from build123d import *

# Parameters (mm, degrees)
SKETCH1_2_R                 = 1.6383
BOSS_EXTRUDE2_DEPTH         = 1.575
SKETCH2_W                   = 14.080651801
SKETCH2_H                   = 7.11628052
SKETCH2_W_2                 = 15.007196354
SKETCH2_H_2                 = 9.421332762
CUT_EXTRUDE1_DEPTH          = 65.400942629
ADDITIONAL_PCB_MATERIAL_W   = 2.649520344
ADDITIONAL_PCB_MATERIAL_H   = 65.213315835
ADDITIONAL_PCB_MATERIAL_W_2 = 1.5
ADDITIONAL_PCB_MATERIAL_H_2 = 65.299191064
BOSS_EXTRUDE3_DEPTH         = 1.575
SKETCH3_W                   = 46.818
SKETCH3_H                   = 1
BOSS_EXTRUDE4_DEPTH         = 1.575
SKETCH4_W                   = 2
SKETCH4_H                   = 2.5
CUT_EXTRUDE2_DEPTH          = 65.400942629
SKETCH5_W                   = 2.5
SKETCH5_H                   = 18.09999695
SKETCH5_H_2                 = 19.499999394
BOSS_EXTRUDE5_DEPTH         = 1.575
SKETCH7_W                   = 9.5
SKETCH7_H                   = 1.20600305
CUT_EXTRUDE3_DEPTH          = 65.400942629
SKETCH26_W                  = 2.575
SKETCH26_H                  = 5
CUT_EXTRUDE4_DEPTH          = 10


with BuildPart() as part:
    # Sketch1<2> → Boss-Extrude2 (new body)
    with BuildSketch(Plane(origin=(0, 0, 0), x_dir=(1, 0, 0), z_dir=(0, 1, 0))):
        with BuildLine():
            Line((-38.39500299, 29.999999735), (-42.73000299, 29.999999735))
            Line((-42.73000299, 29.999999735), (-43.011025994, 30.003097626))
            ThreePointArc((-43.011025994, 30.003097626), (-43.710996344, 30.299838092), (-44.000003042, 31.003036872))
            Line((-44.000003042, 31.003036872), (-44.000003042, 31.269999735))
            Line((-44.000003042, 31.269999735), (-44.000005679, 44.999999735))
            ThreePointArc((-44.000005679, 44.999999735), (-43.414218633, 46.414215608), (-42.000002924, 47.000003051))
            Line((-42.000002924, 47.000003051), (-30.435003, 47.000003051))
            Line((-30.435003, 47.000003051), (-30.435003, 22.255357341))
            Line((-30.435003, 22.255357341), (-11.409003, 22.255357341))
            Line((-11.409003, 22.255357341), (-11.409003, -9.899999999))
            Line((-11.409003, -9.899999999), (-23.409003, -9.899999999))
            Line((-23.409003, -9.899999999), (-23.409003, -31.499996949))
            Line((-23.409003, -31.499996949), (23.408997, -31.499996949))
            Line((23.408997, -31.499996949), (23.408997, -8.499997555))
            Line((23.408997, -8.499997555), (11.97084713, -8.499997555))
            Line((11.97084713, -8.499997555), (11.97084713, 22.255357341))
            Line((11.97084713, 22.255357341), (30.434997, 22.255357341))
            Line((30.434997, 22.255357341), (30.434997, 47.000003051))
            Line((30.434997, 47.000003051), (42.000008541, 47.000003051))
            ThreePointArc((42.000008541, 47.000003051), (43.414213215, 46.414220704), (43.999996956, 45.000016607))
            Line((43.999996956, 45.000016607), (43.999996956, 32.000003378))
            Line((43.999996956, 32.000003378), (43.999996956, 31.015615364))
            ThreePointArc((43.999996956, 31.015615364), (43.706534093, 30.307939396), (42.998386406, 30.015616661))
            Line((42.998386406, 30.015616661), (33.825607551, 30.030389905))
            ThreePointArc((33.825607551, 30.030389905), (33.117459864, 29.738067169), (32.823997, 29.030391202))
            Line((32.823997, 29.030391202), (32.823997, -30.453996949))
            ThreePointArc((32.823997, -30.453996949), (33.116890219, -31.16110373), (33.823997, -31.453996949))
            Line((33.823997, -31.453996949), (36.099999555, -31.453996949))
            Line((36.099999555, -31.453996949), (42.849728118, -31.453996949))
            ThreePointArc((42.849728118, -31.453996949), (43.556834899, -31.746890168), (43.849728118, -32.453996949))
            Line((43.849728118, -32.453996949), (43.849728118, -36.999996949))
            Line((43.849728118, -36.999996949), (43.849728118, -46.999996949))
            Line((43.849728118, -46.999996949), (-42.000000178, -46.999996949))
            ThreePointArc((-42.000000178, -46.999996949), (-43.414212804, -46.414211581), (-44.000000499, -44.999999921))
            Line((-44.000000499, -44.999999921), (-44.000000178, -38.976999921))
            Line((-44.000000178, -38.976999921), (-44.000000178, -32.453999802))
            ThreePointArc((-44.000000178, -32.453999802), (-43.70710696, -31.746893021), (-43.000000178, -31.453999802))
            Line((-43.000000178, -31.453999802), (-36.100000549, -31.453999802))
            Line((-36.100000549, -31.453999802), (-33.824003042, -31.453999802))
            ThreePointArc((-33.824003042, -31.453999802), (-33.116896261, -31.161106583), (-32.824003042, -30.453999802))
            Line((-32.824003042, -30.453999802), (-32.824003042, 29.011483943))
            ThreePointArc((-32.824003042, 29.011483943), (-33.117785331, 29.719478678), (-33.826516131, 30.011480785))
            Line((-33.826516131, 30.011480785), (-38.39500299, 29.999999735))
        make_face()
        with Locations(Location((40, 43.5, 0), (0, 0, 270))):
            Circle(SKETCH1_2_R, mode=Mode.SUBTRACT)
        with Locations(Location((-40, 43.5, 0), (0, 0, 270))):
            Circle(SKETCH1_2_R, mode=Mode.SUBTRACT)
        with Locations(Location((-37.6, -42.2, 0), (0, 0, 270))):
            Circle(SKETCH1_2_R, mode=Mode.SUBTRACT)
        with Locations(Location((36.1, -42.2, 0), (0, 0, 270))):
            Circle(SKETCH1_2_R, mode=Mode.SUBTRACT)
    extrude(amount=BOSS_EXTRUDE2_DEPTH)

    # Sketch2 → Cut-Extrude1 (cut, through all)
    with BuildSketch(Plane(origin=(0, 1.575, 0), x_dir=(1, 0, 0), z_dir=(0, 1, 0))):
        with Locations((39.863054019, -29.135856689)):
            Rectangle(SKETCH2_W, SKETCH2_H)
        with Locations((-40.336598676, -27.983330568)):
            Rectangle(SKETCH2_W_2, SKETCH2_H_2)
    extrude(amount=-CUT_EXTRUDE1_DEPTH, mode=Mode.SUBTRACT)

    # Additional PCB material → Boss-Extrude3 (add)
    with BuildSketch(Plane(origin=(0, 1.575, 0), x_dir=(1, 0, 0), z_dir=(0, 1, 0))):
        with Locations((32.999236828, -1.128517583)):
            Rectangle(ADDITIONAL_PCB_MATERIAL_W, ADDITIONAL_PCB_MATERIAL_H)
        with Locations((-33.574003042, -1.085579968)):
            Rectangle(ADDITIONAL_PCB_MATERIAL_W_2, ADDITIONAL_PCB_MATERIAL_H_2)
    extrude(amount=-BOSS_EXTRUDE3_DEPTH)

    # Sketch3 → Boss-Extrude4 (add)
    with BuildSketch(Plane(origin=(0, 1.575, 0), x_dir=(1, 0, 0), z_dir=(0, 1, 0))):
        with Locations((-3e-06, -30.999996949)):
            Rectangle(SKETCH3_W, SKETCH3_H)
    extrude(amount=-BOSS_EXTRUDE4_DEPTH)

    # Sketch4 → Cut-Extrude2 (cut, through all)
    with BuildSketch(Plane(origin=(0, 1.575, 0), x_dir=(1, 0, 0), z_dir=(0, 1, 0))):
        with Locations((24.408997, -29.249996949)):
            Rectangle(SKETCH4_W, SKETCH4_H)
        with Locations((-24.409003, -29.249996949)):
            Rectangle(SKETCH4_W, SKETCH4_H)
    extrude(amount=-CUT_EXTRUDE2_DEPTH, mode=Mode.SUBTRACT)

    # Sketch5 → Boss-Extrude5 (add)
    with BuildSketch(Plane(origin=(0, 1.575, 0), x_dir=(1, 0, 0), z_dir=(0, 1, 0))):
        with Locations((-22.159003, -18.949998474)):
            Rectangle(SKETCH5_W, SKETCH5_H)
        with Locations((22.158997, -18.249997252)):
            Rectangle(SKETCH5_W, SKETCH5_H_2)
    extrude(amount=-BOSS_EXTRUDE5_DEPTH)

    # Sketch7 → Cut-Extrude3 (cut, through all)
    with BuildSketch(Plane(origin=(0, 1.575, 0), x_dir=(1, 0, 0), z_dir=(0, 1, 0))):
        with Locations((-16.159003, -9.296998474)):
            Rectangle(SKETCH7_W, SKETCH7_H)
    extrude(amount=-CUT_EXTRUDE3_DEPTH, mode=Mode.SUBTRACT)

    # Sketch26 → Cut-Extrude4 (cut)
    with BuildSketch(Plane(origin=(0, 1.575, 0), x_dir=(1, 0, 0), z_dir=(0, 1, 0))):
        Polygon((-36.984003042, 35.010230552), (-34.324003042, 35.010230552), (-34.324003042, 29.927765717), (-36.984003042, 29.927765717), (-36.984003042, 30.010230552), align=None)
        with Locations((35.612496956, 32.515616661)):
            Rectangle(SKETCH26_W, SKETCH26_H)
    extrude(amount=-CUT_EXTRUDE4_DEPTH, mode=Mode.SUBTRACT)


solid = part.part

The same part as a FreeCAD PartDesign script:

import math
import FreeCAD as App
import Part
import Sketcher


def add_polygon(sketch, points):
    """Adds a closed chain of lines whose ends are joined by coincident constraints."""
    first, n = sketch.GeometryCount, len(points)
    for a, b in zip(points, points[1:] + points[:1]):
        sketch.addGeometry(Part.LineSegment(App.Vector(*a, 0), App.Vector(*b, 0)), False)
    for i in range(n):
        sketch.addConstraint(Sketcher.Constraint("Coincident", first + i, 2, first + (i + 1) % n, 1))

doc = App.newDocument("Part")
params = doc.addObject("Spreadsheet::Sheet", "Params")
for row, (alias, value) in enumerate([
    ("sketch1_radius", "1 mm"),
    ("sketch1_radius2", "2 mm"),
    ("sketch1_width", "12 mm"),
    ("sketch1_height", "22.999999 mm"),
    ("sketch1_length", "13.73 mm"),
    ("pad1_length", "1.575 mm"),
    ("sketch3_width", "1.5 mm"),
    ("pad2_length", "1.575 mm"),
    ("sketch4_height", "1 mm"),
    ("pad3_length", "1.575 mm"),
    ("sketch5_width", "2 mm"),
    ("sketch5_height", "2.5 mm"),
    ("sketch6_width", "2.5 mm"),
    ("sketch6_height", "19.499999 mm"),
    ("pad4_length", "1.575 mm"),
    ("sketch7_width", "9.5 mm"),
    ("sketch8_height", "5 mm"),
    ("sketch8_width", "2.66 mm"),
    ("pocket4_length", "10 mm"),
], start=1):
    params.set(f"A{row}", alias)
    params.set(f"B{row}", "=" + value)
    params.setAlias(f"B{row}", alias)

body = doc.addObject("PartDesign::Body", "Body")

# Sketch on XZ plane
sketch1 = doc.addObject("Sketcher::SketchObject", "Sketch")
body.addObject(sketch1)
sketch1.AttachmentSupport = (doc.XZ_Plane, [""])
sketch1.MapMode = "FlatFace"
sketch1.addGeometry(Part.LineSegment(App.Vector(-42.730003, -30, 0), App.Vector(-38.395003, -30, 0)), False)
sketch1.addGeometry(Part.LineSegment(App.Vector(-38.395003, -30, 0), App.Vector(-33.826516, -30.011481, 0)), False)
sketch1.addGeometry(Part.ArcOfCircle(Part.Circle(App.Vector(-33.824003, -29.011484, 0), App.Vector(0, 0, 1), 1), math.radians(-90.14399), math.radians(0)), False)
sketch1.addGeometry(Part.LineSegment(App.Vector(-32.824003, -29.011484, 0), App.Vector(-32.824003, 30.454, 0)), False)
sketch1.addGeometry(Part.ArcOfCircle(Part.Circle(App.Vector(-33.824003, 30.454, 0), App.Vector(0, 0, 1), 1), math.radians(0), math.radians(90)), False)
sketch1.addGeometry(Part.LineSegment(App.Vector(-33.824003, 31.454, 0), App.Vector(-43, 31.454, 0)), False)
sketch1.addGeometry(Part.ArcOfCircle(Part.Circle(App.Vector(-43, 32.454, 0), App.Vector(0, 0, 1), 1), math.radians(180), math.radians(270)), False)
sketch1.addGeometry(Part.LineSegment(App.Vector(-44, 32.454, 0), App.Vector(-44, 38.977, 0)), False)
sketch1.addGeometry(Part.LineSegment(App.Vector(-44, 38.977, 0), App.Vector(-44, 45, 0)), False)
sketch1.addGeometry(Part.ArcOfCircle(Part.Circle(App.Vector(-42, 44.999997, 0), App.Vector(0, 0, 1), 2), math.radians(90), math.radians(179.999906)), False)
sketch1.addGeometry(Part.LineSegment(App.Vector(-42, 46.999997, 0), App.Vector(43.849728, 46.999997, 0)), False)
sketch1.addGeometry(Part.LineSegment(App.Vector(43.849728, 46.999997, 0), App.Vector(43.849728, 32.453997, 0)), False)
sketch1.addGeometry(Part.ArcOfCircle(Part.Circle(App.Vector(42.849728, 32.453997, 0), App.Vector(0, 0, 1), 1), math.radians(-90), math.radians(0)), False)
sketch1.addGeometry(Part.LineSegment(App.Vector(42.849728, 31.453997, 0), App.Vector(33.823997, 31.453997, 0)), False)
sketch1.addGeometry(Part.ArcOfCircle(Part.Circle(App.Vector(33.823997, 30.453997, 0), App.Vector(0, 0, 1), 1), math.radians(90), math.radians(180)), False)
sketch1.addGeometry(Part.LineSegment(App.Vector(32.823997, 30.453997, 0), App.Vector(32.823997, -29.030391, 0)), False)
sketch1.addGeometry(Part.ArcOfCircle(Part.Circle(App.Vector(33.823997, -29.030391, 0), App.Vector(0, 0, 1), 1), math.radians(-180), math.radians(-89.907722)), False)
sketch1.addGeometry(Part.LineSegment(App.Vector(33.825608, -30.03039, 0), App.Vector(42.998386, -30.015617, 0)), False)
sketch1.addGeometry(Part.ArcOfCircle(Part.Circle(App.Vector(42.999997, -31.015615, 0), App.Vector(0, 0, 1), 1), math.radians(0), math.radians(90.092278)), False)
sketch1.addGeometry(Part.LineSegment(App.Vector(43.999997, -31.015615, 0), App.Vector(43.999997, -45.000017, 0)), False)
sketch1.addGeometry(Part.ArcOfCircle(Part.Circle(App.Vector(42.000009, -45.000015, 0), App.Vector(0, 0, 1), 1.999988), math.radians(-90), math.radians(-0.000056)), False)
sketch1.addGeometry(Part.LineSegment(App.Vector(42.000009, -47.000003, 0), App.Vector(30.434997, -47.000003, 0)), False)
sketch1.addGeometry(Part.LineSegment(App.Vector(30.434997, -47.000003, 0), App.Vector(30.434997, -22.255357, 0)), False)
sketch1.addGeometry(Part.LineSegment(App.Vector(30.434997, -22.255357, 0), App.Vector(11.970847, -22.255357, 0)), False)
sketch1.addGeometry(Part.LineSegment(App.Vector(11.970847, -22.255357, 0), App.Vector(11.970847, 8.499998, 0)), False)
sketch1.addGeometry(Part.LineSegment(App.Vector(11.970847, 8.499998, 0), App.Vector(23.408997, 8.499998, 0)), False)
sketch1.addGeometry(Part.LineSegment(App.Vector(23.408997, 8.499998, 0), App.Vector(23.408997, 31.499997, 0)), False)
sketch1.addGeometry(Part.LineSegment(App.Vector(23.408997, 31.499997, 0), App.Vector(-23.409003, 31.499997, 0)), False)
sketch1.addGeometry(Part.LineSegment(App.Vector(-23.409003, 31.499997, 0), App.Vector(-23.409003, 9.9, 0)), False)
sketch1.addGeometry(Part.LineSegment(App.Vector(-23.409003, 9.9, 0), App.Vector(-11.409003, 9.9, 0)), False)
sketch1.addGeometry(Part.LineSegment(App.Vector(-11.409003, 9.9, 0), App.Vector(-11.409003, -22.255357, 0)), False)
sketch1.addGeometry(Part.LineSegment(App.Vector(-11.409003, -22.255357, 0), App.Vector(-30.435003, -22.255357, 0)), False)
sketch1.addGeometry(Part.LineSegment(App.Vector(-30.435003, -22.255357, 0), App.Vector(-30.435003, -47.000003, 0)), False)
sketch1.addGeometry(Part.LineSegment(App.Vector(-30.435003, -47.000003, 0), App.Vector(-42.000003, -47.000003, 0)), False)
sketch1.addGeometry(Part.ArcOfCircle(Part.Circle(App.Vector(-42.000003, -45, 0), App.Vector(0, 0, 1), 2.000003), math.radians(179.999984), math.radians(270)), False)
sketch1.addGeometry(Part.LineSegment(App.Vector(-44.000006, -45, 0), App.Vector(-44.000003, -31.27, 0)), False)
sketch1.addGeometry(Part.LineSegment(App.Vector(-44.000003, -31.27, 0), App.Vector(-44.000003, -31.003037, 0)), False)
sketch1.addGeometry(Part.ArcOfCircle(Part.Circle(App.Vector(-43.000003, -31.003037, 0), App.Vector(0, 0, 1), 1), math.radians(90.631581), math.radians(180)), False)
sketch1.addGeometry(Part.LineSegment(App.Vector(-43.011026, -30.003098, 0), App.Vector(-42.730003, -30, 0)), False)
sketch1.addGeometry(Part.Circle(App.Vector(36.1, 42.2, 0), App.Vector(0, 0, 1), 1.6383), False)
sketch1.addGeometry(Part.Circle(App.Vector(-37.6, 42.2, 0), App.Vector(0, 0, 1), 1.6383), False)
sketch1.addGeometry(Part.Circle(App.Vector(40, -43.5, 0), App.Vector(0, 0, 1), 1.6383), False)
sketch1.addGeometry(Part.Circle(App.Vector(-40, -43.5, 0), App.Vector(0, 0, 1), 1.6383), False)
sketch1.addConstraint(Sketcher.Constraint("Coincident", 0, 2, 1, 1))
sketch1.addConstraint(Sketcher.Constraint("Tangent", 1, 2, 2, 1))
sketch1.addConstraint(Sketcher.Constraint("Tangent", 2, 2, 3, 1))
sketch1.addConstraint(Sketcher.Constraint("Tangent", 3, 2, 4, 1))
sketch1.addConstraint(Sketcher.Constraint("Tangent", 4, 2, 5, 1))
sketch1.addConstraint(Sketcher.Constraint("Tangent", 5, 2, 6, 2))
sketch1.addConstraint(Sketcher.Constraint("Tangent", 6, 1, 7, 1))
sketch1.addConstraint(Sketcher.Constraint("Coincident", 7, 2, 8, 1))
sketch1.addConstraint(Sketcher.Constraint("Tangent", 8, 2, 9, 2))
sketch1.addConstraint(Sketcher.Constraint("Tangent", 9, 1, 10, 1))
sketch1.addConstraint(Sketcher.Constraint("Coincident", 10, 2, 11, 1))
sketch1.addConstraint(Sketcher.Constraint("Tangent", 11, 2, 12, 2))
sketch1.addConstraint(Sketcher.Constraint("Tangent", 12, 1, 13, 1))
sketch1.addConstraint(Sketcher.Constraint("Tangent", 13, 2, 14, 1))
sketch1.addConstraint(Sketcher.Constraint("Tangent", 14, 2, 15, 1))
sketch1.addConstraint(Sketcher.Constraint("Tangent", 15, 2, 16, 1))
sketch1.addConstraint(Sketcher.Constraint("Tangent", 16, 2, 17, 1))
sketch1.addConstraint(Sketcher.Constraint("Tangent", 17, 2, 18, 2))
sketch1.addConstraint(Sketcher.Constraint("Tangent", 18, 1, 19, 1))
sketch1.addConstraint(Sketcher.Constraint("Tangent", 19, 2, 20, 2))
sketch1.addConstraint(Sketcher.Constraint("Tangent", 20, 1, 21, 1))
sketch1.addConstraint(Sketcher.Constraint("Coincident", 21, 2, 22, 1))
sketch1.addConstraint(Sketcher.Constraint("Coincident", 22, 2, 23, 1))
sketch1.addConstraint(Sketcher.Constraint("Coincident", 23, 2, 24, 1))
sketch1.addConstraint(Sketcher.Constraint("Coincident", 24, 2, 25, 1))
sketch1.addConstraint(Sketcher.Constraint("Coincident", 25, 2, 26, 1))
sketch1.addConstraint(Sketcher.Constraint("Coincident", 26, 2, 27, 1))
sketch1.addConstraint(Sketcher.Constraint("Coincident", 27, 2, 28, 1))
sketch1.addConstraint(Sketcher.Constraint("Coincident", 28, 2, 29, 1))
sketch1.addConstraint(Sketcher.Constraint("Coincident", 29, 2, 30, 1))
sketch1.addConstraint(Sketcher.Constraint("Coincident", 30, 2, 31, 1))
sketch1.addConstraint(Sketcher.Constraint("Coincident", 31, 2, 32, 1))
sketch1.addConstraint(Sketcher.Constraint("Coincident", 32, 2, 33, 1))
sketch1.addConstraint(Sketcher.Constraint("Tangent", 33, 2, 34, 2))
sketch1.addConstraint(Sketcher.Constraint("Tangent", 34, 1, 35, 1))
sketch1.addConstraint(Sketcher.Constraint("Coincident", 35, 2, 36, 1))
sketch1.addConstraint(Sketcher.Constraint("Tangent", 36, 2, 37, 2))
sketch1.addConstraint(Sketcher.Constraint("Tangent", 37, 1, 38, 1))
sketch1.addConstraint(Sketcher.Constraint("Coincident", 38, 2, 0, 1))
sketch1.addConstraint(Sketcher.Constraint("Horizontal", 0))
sketch1.addConstraint(Sketcher.Constraint("Vertical", 3))
sketch1.addConstraint(Sketcher.Constraint("Horizontal", 5))
sketch1.addConstraint(Sketcher.Constraint("Vertical", 7))
sketch1.addConstraint(Sketcher.Constraint("Vertical", 8))
sketch1.addConstraint(Sketcher.Constraint("Horizontal", 10))
sketch1.addConstraint(Sketcher.Constraint("Vertical", 11))
sketch1.addConstraint(Sketcher.Constraint("Horizontal", 13))
sketch1.addConstraint(Sketcher.Constraint("Vertical", 15))
sketch1.addConstraint(Sketcher.Constraint("Vertical", 19))
sketch1.addConstraint(Sketcher.Constraint("Horizontal", 21))
sketch1.addConstraint(Sketcher.Constraint("Vertical", 22))
sketch1.addConstraint(Sketcher.Constraint("Horizontal", 23))
sketch1.addConstraint(Sketcher.Constraint("Vertical", 24))
sketch1.addConstraint(Sketcher.Constraint("Horizontal", 25))
sketch1.addConstraint(Sketcher.Constraint("Vertical", 26))
sketch1.addConstraint(Sketcher.Constraint("Horizontal", 27))
sketch1.addConstraint(Sketcher.Constraint("Vertical", 28))
sketch1.addConstraint(Sketcher.Constraint("Horizontal", 29))
sketch1.addConstraint(Sketcher.Constraint("Vertical", 30))
sketch1.addConstraint(Sketcher.Constraint("Horizontal", 31))
sketch1.addConstraint(Sketcher.Constraint("Vertical", 32))
sketch1.addConstraint(Sketcher.Constraint("Horizontal", 33))
sketch1.addConstraint(Sketcher.Constraint("Vertical", 36))
sketch1.addConstraint(Sketcher.Constraint("Equal", 2, 4))
sketch1.addConstraint(Sketcher.Constraint("Equal", 4, 6))
sketch1.addConstraint(Sketcher.Constraint("Equal", 6, 12))
sketch1.addConstraint(Sketcher.Constraint("Equal", 12, 14))
sketch1.addConstraint(Sketcher.Constraint("Equal", 14, 16))
sketch1.addConstraint(Sketcher.Constraint("Equal", 16, 18))
sketch1.addConstraint(Sketcher.Constraint("Equal", 18, 37))
sketch1.addConstraint(Sketcher.Constraint("Equal", 39, 40))
sketch1.addConstraint(Sketcher.Constraint("Equal", 40, 41))
sketch1.addConstraint(Sketcher.Constraint("Equal", 41, 42))
sketch1.addConstraint(Sketcher.Constraint("Symmetric", 4, 3, 14, 3, -2))
sketch1.addConstraint(Sketcher.Constraint("Symmetric", 41, 3, 42, 3, -2))
sketch1.addConstraint(Sketcher.Constraint("Symmetric", 22, 2, 31, 2, -2))
sketch1.addConstraint(Sketcher.Constraint("Symmetric", 20, 1, 33, 2, -2))
sketch1.addConstraint(Sketcher.Constraint("Symmetric", 9, 3, 34, 3, -1))
sketch1.addConstraint(Sketcher.Constraint("Symmetric", 8, 2, 34, 1, -1))
sketch1.addConstraint(Sketcher.Constraint("Horizontal", 39, 3, 40, 3))
sketch1.addConstraint(Sketcher.Constraint("Radius", 2, 1.0))
sketch1.addConstraint(Sketcher.Constraint("Radius", 9, 2.0))
sketch1.addConstraint(Sketcher.Constraint("DistanceX", 29, 1, 29, 2, 12.0))
sketch1.addConstraint(Sketcher.Constraint("DistanceY", 26, 1, 26, 2, 22.999999))
sketch1.addConstraint(Sketcher.Constraint("DistanceX", 6, 3, -1, 1, 43.0))
sketch1.addConstraint(Sketcher.Constraint("DistanceY", 34, 3, -1, 1, 45.0))
sketch1.addConstraint(Sketcher.Constraint("DistanceX", -1, 1, 41, 3, 40.0))
sketch1.addConstraint(Sketcher.Constraint("DistanceY", 0, 2, -1, 1, 30.0))
sketch1.addConstraint(Sketcher.Constraint("Diameter", 39, 3.2766))
sketch1.addConstraint(Sketcher.Constraint("DistanceX", -1, 1, 39, 3, 36.1))
sketch1.addConstraint(Sketcher.Constraint("DistanceY", -1, 1, 39, 3, 42.2))
sketch1.addConstraint(Sketcher.Constraint("DistanceX", 40, 3, -1, 1, 37.6))
sketch1.addConstraint(Sketcher.Constraint("DistanceY", 41, 3, -1, 1, 43.5))
sketch1.addConstraint(Sketcher.Constraint("DistanceY", -1, 1, 28, 2, 9.9))
sketch1.addConstraint(Sketcher.Constraint("Distance", 35, 13.73))
sketch1.addConstraint(Sketcher.Constraint("DistanceX", 0, 1, 0, 2, 4.335))
sketch1.addConstraint(Sketcher.Constraint("DistanceX", 27, 2, 27, 1, 46.818))
sketch1.addConstraint(Sketcher.Constraint("DistanceX", 31, 2, 31, 1, 19.026))
sketch1.addConstraint(Sketcher.Constraint("DistanceX", 33, 2, 33, 1, 11.565))
sketch1.addConstraint(Sketcher.Constraint("DistanceY", 7, 1, 7, 2, 6.523))
sketch1.addConstraint(Sketcher.Constraint("DistanceY", 8, 1, 8, 2, 6.023))
sketch1.addConstraint(Sketcher.Constraint("Radius", 20, 1.999988))
sketch1.addConstraint(Sketcher.Constraint("DistanceX", 0, 2, 31, 2, 7.96))
sketch1.addConstraint(Sketcher.Constraint("DistanceY", 19, 2, 19, 1, 13.984401))
sketch1.addConstraint(Sketcher.Constraint("DistanceX", 4, 3, 14, 3, 67.648))
sketch1.addConstraint(Sketcher.Constraint("DistanceY", 24, 2, 14, 2, 21.953999))
sketch1.addConstraint(Sketcher.Constraint("Distance", 1, 4.568501))
sketch1.addConstraint(Sketcher.Constraint("DistanceX", 10, 1, 10, 2, 85.849728))
sketch1.addConstraint(Sketcher.Constraint("DistanceX", 23, 2, 23, 1, 18.46415))
sketch1.addConstraint(Sketcher.Constraint("DistanceY", 15, 2, 15, 1, 59.484388))
sketch1.addConstraint(Sketcher.Constraint("Distance", 38, 0.28104))
sketch1.addConstraint(Sketcher.Constraint("DistanceY", 22, 1, 22, 2, 24.744646))
sketch1.setExpression("Constraints[80]", "Params.sketch1_radius")
sketch1.setExpression("Constraints[81]", "Params.sketch1_radius2")
sketch1.setExpression("Constraints[82]", "Params.sketch1_width")
sketch1.setExpression("Constraints[83]", "Params.sketch1_height")
sketch1.setExpression("Constraints[94]", "Params.sketch1_length")
pad1 = doc.addObject("PartDesign::Pad", "Pad")
body.addObject(pad1)
pad1.Profile = sketch1
pad1.setExpression("Length", "Params.pad1_length")
pad1.Reversed = True

# Sketch on XZ plane
sketch2 = doc.addObject("Sketcher::SketchObject", "Sketch001")
body.addObject(sketch2)
sketch2.AttachmentSupport = (doc.XZ_Plane, [""])
sketch2.MapMode = "FlatFace"
sketch2.AttachmentOffset = App.Placement(App.Vector(0, 0, -1.575), App.Rotation())
add_polygon(sketch2, [(32.822728, 25.577716), (32.822728, 32.693997), (46.90338, 32.693997), (46.90338, 25.577716)])  # lines 0-3
add_polygon(sketch2, [(-47.840197, 23.272664), (-47.840197, 32.693997), (-32.833, 32.693997), (-32.833, 23.272664)])  # lines 4-7
sketch2.addConstraint(Sketcher.Constraint("Vertical", 0))
sketch2.addConstraint(Sketcher.Constraint("Horizontal", 1))
sketch2.addConstraint(Sketcher.Constraint("Vertical", 2))
sketch2.addConstraint(Sketcher.Constraint("Horizontal", 3))
sketch2.addConstraint(Sketcher.Constraint("Vertical", 4))
sketch2.addConstraint(Sketcher.Constraint("Horizontal", 5))
sketch2.addConstraint(Sketcher.Constraint("Vertical", 6))
sketch2.addConstraint(Sketcher.Constraint("Horizontal", 7))
sketch2.addConstraint(Sketcher.Constraint("Horizontal", 1, 2, 4, 2))
sketch2.addConstraint(Sketcher.Constraint("DistanceX", 5, 2, -1, 1, 32.833))
sketch2.addConstraint(Sketcher.Constraint("DistanceX", 1, 1, 1, 2, 14.080652))
sketch2.addConstraint(Sketcher.Constraint("DistanceY", 0, 1, 0, 2, 7.116281))
sketch2.addConstraint(Sketcher.Constraint("DistanceX", 5, 1, 5, 2, 15.007196))
sketch2.addConstraint(Sketcher.Constraint("DistanceY", 4, 1, 4, 2, 9.421333))
sketch2.addConstraint(Sketcher.Constraint("DistanceX", -1, 1, 0, 2, 32.822728))
sketch2.addConstraint(Sketcher.Constraint("DistanceY", -1, 1, 0, 2, 32.693997))
pocket1 = doc.addObject("PartDesign::Pocket", "Pocket")
body.addObject(pocket1)
pocket1.Profile = sketch2
pocket1.Type = "ThroughAll"
pocket1.Reversed = True

# Sketch on XZ plane
sketch3 = doc.addObject("Sketcher::SketchObject", "Sketch002")
body.addObject(sketch3)
sketch3.AttachmentSupport = (doc.XZ_Plane, [""])
sketch3.MapMode = "FlatFace"
sketch3.AttachmentOffset = App.Placement(App.Vector(0, 0, -1.575), App.Rotation())
add_polygon(sketch3, [(31.674477, -31.47814), (31.674477, 33.735175), (34.323997, 33.735175), (34.323997, -31.47814)])  # lines 0-3
add_polygon(sketch3, [(-34.324003, -31.564016), (-34.324003, 33.735175), (-32.824003, 33.735175), (-32.824003, -31.564016)])  # lines 4-7
sketch3.addConstraint(Sketcher.Constraint("Vertical", 0))
sketch3.addConstraint(Sketcher.Constraint("Horizontal", 1))
sketch3.addConstraint(Sketcher.Constraint("Vertical", 2))
sketch3.addConstraint(Sketcher.Constraint("Horizontal", 3))
sketch3.addConstraint(Sketcher.Constraint("Vertical", 4))
sketch3.addConstraint(Sketcher.Constraint("Horizontal", 5))
sketch3.addConstraint(Sketcher.Constraint("Vertical", 6))
sketch3.addConstraint(Sketcher.Constraint("Horizontal", 7))
sketch3.addConstraint(Sketcher.Constraint("Symmetric", 1, 2, 4, 2, -2))
sketch3.addConstraint(Sketcher.Constraint("DistanceX", 5, 1, 5, 2, 1.5))
sketch3.addConstraint(Sketcher.Constraint("DistanceX", 4, 2, 1, 2, 68.648))
sketch3.addConstraint(Sketcher.Constraint("DistanceX", 1, 1, 1, 2, 2.64952))
sketch3.addConstraint(Sketcher.Constraint("DistanceY", 4, 1, 4, 2, 65.299191))
sketch3.addConstraint(Sketcher.Constraint("DistanceY", 0, 1, 0, 2, 65.213316))
sketch3.addConstraint(Sketcher.Constraint("DistanceY", 2, 2, -1, 1, 31.47814))
sketch3.setExpression("Constraints[17]", "Params.sketch3_width")
pad2 = doc.addObject("PartDesign::Pad", "Pad001")
body.addObject(pad2)
pad2.Profile = sketch3
pad2.setExpression("Length", "Params.pad2_length")

# Sketch on XZ plane
sketch4 = doc.addObject("Sketcher::SketchObject", "Sketch003")
body.addObject(sketch4)
sketch4.AttachmentSupport = (doc.XZ_Plane, [""])
sketch4.MapMode = "FlatFace"
sketch4.AttachmentOffset = App.Placement(App.Vector(0, 0, -1.575), App.Rotation())
add_polygon(sketch4, [(-23.409003, 30.499997), (-23.409003, 31.499997), (23.408997, 31.499997), (23.408997, 30.499997)])  # lines 0-3
sketch4.addConstraint(Sketcher.Constraint("Vertical", 0))
sketch4.addConstraint(Sketcher.Constraint("Horizontal", 1))
sketch4.addConstraint(Sketcher.Constraint("Vertical", 2))
sketch4.addConstraint(Sketcher.Constraint("Horizontal", 3))
sketch4.addConstraint(Sketcher.Constraint("DistanceY", 0, 1, 0, 2, 1.0))
sketch4.addConstraint(Sketcher.Constraint("DistanceX", 1, 1, 1, 2, 46.818))
sketch4.addConstraint(Sketcher.Constraint("DistanceX", 0, 2, -1, 1, 23.409003))
sketch4.addConstraint(Sketcher.Constraint("DistanceY", -1, 1, 0, 2, 31.499997))
sketch4.setExpression("Constraints[8]", "Params.sketch4_height")
pad3 = doc.addObject("PartDesign::Pad", "Pad002")
body.addObject(pad3)
pad3.Profile = sketch4
pad3.setExpression("Length", "Params.pad3_length")

# Sketch on XZ plane
sketch5 = doc.addObject("Sketcher::SketchObject", "Sketch004")
body.addObject(sketch5)
sketch5.AttachmentSupport = (doc.XZ_Plane, [""])
sketch5.MapMode = "FlatFace"
sketch5.AttachmentOffset = App.Placement(App.Vector(0, 0, -1.575), App.Rotation())
add_polygon(sketch5, [(23.408997, 27.999997), (23.408997, 30.499997), (25.408997, 30.499997), (25.408997, 27.999997)])  # lines 0-3
add_polygon(sketch5, [(-25.409003, 27.999997), (-25.409003, 30.499997), (-23.409003, 30.499997), (-23.409003, 27.999997)])  # lines 4-7
sketch5.addConstraint(Sketcher.Constraint("Vertical", 0))
sketch5.addConstraint(Sketcher.Constraint("Horizontal", 1))
sketch5.addConstraint(Sketcher.Constraint("Vertical", 2))
sketch5.addConstraint(Sketcher.Constraint("Horizontal", 3))
sketch5.addConstraint(Sketcher.Constraint("Vertical", 4))
sketch5.addConstraint(Sketcher.Constraint("Horizontal", 5))
sketch5.addConstraint(Sketcher.Constraint("Vertical", 6))
sketch5.addConstraint(Sketcher.Constraint("Horizontal", 7))
sketch5.addConstraint(Sketcher.Constraint("Symmetric", 1, 2, 4, 2, -2))
sketch5.addConstraint(Sketcher.Constraint("Symmetric", 3, 2, 6, 2, -2))
sketch5.addConstraint(Sketcher.Constraint("DistanceX", 1, 1, 1, 2, 2.0))
sketch5.addConstraint(Sketcher.Constraint("DistanceY", 0, 1, 0, 2, 2.5))
sketch5.addConstraint(Sketcher.Constraint("DistanceX", 4, 2, 0, 2, 48.818))
sketch5.addConstraint(Sketcher.Constraint("DistanceY", -1, 1, 0, 2, 30.499997))
sketch5.setExpression("Constraints[18]", "Params.sketch5_width")
sketch5.setExpression("Constraints[19]", "Params.sketch5_height")
pocket2 = doc.addObject("PartDesign::Pocket", "Pocket001")
body.addObject(pocket2)
pocket2.Profile = sketch5
pocket2.Type = "ThroughAll"
pocket2.Reversed = True

# Sketch on XZ plane
sketch6 = doc.addObject("Sketcher::SketchObject", "Sketch005")
body.addObject(sketch6)
sketch6.AttachmentSupport = (doc.XZ_Plane, [""])
sketch6.MapMode = "FlatFace"
sketch6.AttachmentOffset = App.Placement(App.Vector(0, 0, -1.575), App.Rotation())
add_polygon(sketch6, [(-23.409003, 9.9), (-23.409003, 27.999997), (-20.909003, 27.999997), (-20.909003, 9.9)])  # lines 0-3
add_polygon(sketch6, [(20.908997, 8.499998), (20.908997, 27.999997), (23.408997, 27.999997), (23.408997, 8.499998)])  # lines 4-7
sketch6.addConstraint(Sketcher.Constraint("Vertical", 0))
sketch6.addConstraint(Sketcher.Constraint("Horizontal", 1))
sketch6.addConstraint(Sketcher.Constraint("Vertical", 2))
sketch6.addConstraint(Sketcher.Constraint("Horizontal", 3))
sketch6.addConstraint(Sketcher.Constraint("Vertical", 4))
sketch6.addConstraint(Sketcher.Constraint("Horizontal", 5))
sketch6.addConstraint(Sketcher.Constraint("Vertical", 6))
sketch6.addConstraint(Sketcher.Constraint("Horizontal", 7))
sketch6.addConstraint(Sketcher.Constraint("Symmetric", 1, 2, 4, 2, -2))
sketch6.addConstraint(Sketcher.Constraint("Equal", 3, 5))
sketch6.addConstraint(Sketcher.Constraint("DistanceX", 1, 1, 1, 2, 2.5))
sketch6.addConstraint(Sketcher.Constraint("DistanceY", 4, 1, 4, 2, 19.499999))
sketch6.addConstraint(Sketcher.Constraint("DistanceY", -1, 1, 2, 2, 9.9))
sketch6.addConstraint(Sketcher.Constraint("DistanceX", 1, 2, 4, 2, 41.818))
sketch6.addConstraint(Sketcher.Constraint("DistanceY", 0, 1, 0, 2, 18.099997))
sketch6.setExpression("Constraints[18]", "Params.sketch6_width")
sketch6.setExpression("Constraints[19]", "Params.sketch6_height")
pad4 = doc.addObject("PartDesign::Pad", "Pad003")
body.addObject(pad4)
pad4.Profile = sketch6
pad4.setExpression("Length", "Params.pad4_length")

# Sketch on XZ plane
sketch7 = doc.addObject("Sketcher::SketchObject", "Sketch006")
body.addObject(sketch7)
sketch7.AttachmentSupport = (doc.XZ_Plane, [""])
sketch7.MapMode = "FlatFace"
sketch7.AttachmentOffset = App.Placement(App.Vector(0, 0, -1.575), App.Rotation())
add_polygon(sketch7, [(-20.909003, 8.693997), (-20.909003, 9.9), (-11.409003, 9.9), (-11.409003, 8.693997)])  # lines 0-3
sketch7.addConstraint(Sketcher.Constraint("Vertical", 0))
sketch7.addConstraint(Sketcher.Constraint("Horizontal", 1))
sketch7.addConstraint(Sketcher.Constraint("Vertical", 2))
sketch7.addConstraint(Sketcher.Constraint("Horizontal", 3))
sketch7.addConstraint(Sketcher.Constraint("DistanceX", 1, 1, 1, 2, 9.5))
sketch7.addConstraint(Sketcher.Constraint("DistanceY", -1, 1, 0, 2, 9.9))
sketch7.addConstraint(Sketcher.Constraint("DistanceY", 0, 1, 0, 2, 1.206003))
sketch7.addConstraint(Sketcher.Constraint("DistanceX", 0, 2, -1, 1, 20.909003))
sketch7.setExpression("Constraints[8]", "Params.sketch7_width")
pocket3 = doc.addObject("PartDesign::Pocket", "Pocket002")
body.addObject(pocket3)
pocket3.Profile = sketch7
pocket3.Type = "ThroughAll"
pocket3.Reversed = True

# Sketch on XZ plane
sketch8 = doc.addObject("Sketcher::SketchObject", "Sketch007")
body.addObject(sketch8)
sketch8.AttachmentSupport = (doc.XZ_Plane, [""])
sketch8.MapMode = "FlatFace"
sketch8.AttachmentOffset = App.Placement(App.Vector(0, 0, -1.575), App.Rotation())
add_polygon(sketch8, [(-34.324003, -35.010231), (-36.984003, -35.010231), (-36.984003, -29.927766), (-34.324003, -29.927766)])  # lines 0-3
add_polygon(sketch8, [(34.324997, -35.015617), (34.324997, -30.015617), (36.899997, -30.015617), (36.899997, -35.015617)])  # lines 4-7
sketch8.addConstraint(Sketcher.Constraint("Horizontal", 0))
sketch8.addConstraint(Sketcher.Constraint("Vertical", 1))
sketch8.addConstraint(Sketcher.Constraint("Horizontal", 2))
sketch8.addConstraint(Sketcher.Constraint("Vertical", 3))
sketch8.addConstraint(Sketcher.Constraint("Vertical", 4))
sketch8.addConstraint(Sketcher.Constraint("Horizontal", 5))
sketch8.addConstraint(Sketcher.Constraint("Vertical", 6))
sketch8.addConstraint(Sketcher.Constraint("Horizontal", 7))
sketch8.addConstraint(Sketcher.Constraint("DistanceY", 4, 1, 4, 2, 5.0))
sketch8.addConstraint(Sketcher.Constraint("DistanceX", 0, 2, 0, 1, 2.66))
sketch8.addConstraint(Sketcher.Constraint("DistanceX", 5, 1, 5, 2, 2.575))
sketch8.addConstraint(Sketcher.Constraint("DistanceX", 2, 2, 4, 2, 68.649))
sketch8.addConstraint(Sketcher.Constraint("DistanceY", 1, 1, 1, 2, 5.082465))
sketch8.addConstraint(Sketcher.Constraint("DistanceY", 0, 2, -1, 1, 35.010231))
sketch8.addConstraint(Sketcher.Constraint("DistanceY", 4, 2, 2, 2, 0.087851))
sketch8.addConstraint(Sketcher.Constraint("DistanceX", 0, 2, -1, 1, 36.984003))
sketch8.setExpression("Constraints[16]", "Params.sketch8_height")
sketch8.setExpression("Constraints[17]", "Params.sketch8_width")
pocket4 = doc.addObject("PartDesign::Pocket", "Pocket003")
body.addObject(pocket4)
pocket4.Profile = sketch8
pocket4.setExpression("Length", "Params.pocket4_length")
pocket4.Reversed = True

doc.recompute()
